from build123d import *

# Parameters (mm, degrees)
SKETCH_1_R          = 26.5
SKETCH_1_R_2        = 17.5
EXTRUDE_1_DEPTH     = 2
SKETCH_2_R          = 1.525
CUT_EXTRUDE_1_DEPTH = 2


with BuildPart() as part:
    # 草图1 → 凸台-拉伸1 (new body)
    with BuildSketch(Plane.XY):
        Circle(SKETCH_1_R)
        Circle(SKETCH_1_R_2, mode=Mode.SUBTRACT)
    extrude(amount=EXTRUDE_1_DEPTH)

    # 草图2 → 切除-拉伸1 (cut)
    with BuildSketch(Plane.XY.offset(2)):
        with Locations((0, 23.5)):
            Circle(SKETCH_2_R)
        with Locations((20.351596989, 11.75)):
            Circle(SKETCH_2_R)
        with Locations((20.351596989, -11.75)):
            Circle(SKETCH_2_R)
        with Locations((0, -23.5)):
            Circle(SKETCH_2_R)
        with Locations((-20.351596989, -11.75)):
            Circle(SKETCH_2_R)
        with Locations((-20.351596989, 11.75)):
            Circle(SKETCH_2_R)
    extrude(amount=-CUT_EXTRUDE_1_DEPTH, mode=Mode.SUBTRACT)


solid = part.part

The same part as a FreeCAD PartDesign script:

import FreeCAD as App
import Part
import Sketcher

doc = App.newDocument("Part")
body = doc.addObject("PartDesign::Body", "Body")

sketch1 = doc.addObject("Sketcher::SketchObject", "Sketch")
body.addObject(sketch1)
sketch1.AttachmentSupport = (doc.XY_Plane, [""])
sketch1.MapMode = "FlatFace"
sketch1.addGeometry([
    Part.Circle(App.Vector(0, 0, 0), App.Vector(0, 0, 1), 26.5),
    Part.Circle(App.Vector(0, 0, 0), App.Vector(0, 0, 1), 17.5),
], False)
sketch1.addConstraint([
    Sketcher.Constraint("Coincident", 0, 3, -1, 1),
    Sketcher.Constraint("Coincident", 1, 3, -1, 1),
    Sketcher.Constraint("Diameter", 0, 53.0),
    Sketcher.Constraint("Diameter", 1, 35.0),
])
pad1 = doc.addObject("PartDesign::Pad", "Pad")
body.addObject(pad1)
pad1.Profile = sketch1
pad1.Length = 2

sketch2 = doc.addObject("Sketcher::SketchObject", "Sketch001")
body.addObject(sketch2)
sketch2.AttachmentSupport = (doc.XY_Plane, [""])
sketch2.MapMode = "FlatFace"
sketch2.AttachmentOffset = App.Placement(App.Vector(0, 0, 2), App.Rotation())
sketch2.addGeometry([
    Part.Circle(App.Vector(0, 23.5, 0), App.Vector(0, 0, 1), 1.525),
    Part.Circle(App.Vector(20.351597, 11.75, 0), App.Vector(0, 0, 1), 1.525),
    Part.Circle(App.Vector(20.351597, -11.75, 0), App.Vector(0, 0, 1), 1.525),
    Part.Circle(App.Vector(0, -23.5, 0), App.Vector(0, 0, 1), 1.525),
    Part.Circle(App.Vector(-20.351597, -11.75, 0), App.Vector(0, 0, 1), 1.525),
    Part.Circle(App.Vector(-20.351597, 11.75, 0), App.Vector(0, 0, 1), 1.525),
], False)
sketch2.addConstraint([
    Sketcher.Constraint("Equal", 0, 1),
    Sketcher.Constraint("Equal", 1, 2),
    Sketcher.Constraint("Equal", 2, 3),
    Sketcher.Constraint("Equal", 3, 4),
    Sketcher.Constraint("Equal", 4, 5),
    Sketcher.Constraint("Symmetric", 0, 3, 3, 3, -1, 1),
    Sketcher.Constraint("Symmetric", 1, 3, 4, 3, -1, 1),
    Sketcher.Constraint("Symmetric", 2, 3, 5, 3, -1, 1),
    Sketcher.Constraint("Symmetric", 2, 3, 4, 3, -2),
    Sketcher.Constraint("PointOnObject", 0, 3, -2),
    Sketcher.Constraint("Diameter", 0, 3.05),
    Sketcher.Constraint("DistanceY", 3, 3, 0, 3, 47.0),
    Sketcher.Constraint("DistanceY", 2, 3, 1, 3, 23.5),
    Sketcher.Constraint("DistanceX", -1, 1, 1, 3, 20.351597),
])
pocket1 = doc.addObject("PartDesign::Pocket", "Pocket")
body.addObject(pocket1)
pocket1.Profile = sketch2
pocket1.Length = 2

doc.recompute()
